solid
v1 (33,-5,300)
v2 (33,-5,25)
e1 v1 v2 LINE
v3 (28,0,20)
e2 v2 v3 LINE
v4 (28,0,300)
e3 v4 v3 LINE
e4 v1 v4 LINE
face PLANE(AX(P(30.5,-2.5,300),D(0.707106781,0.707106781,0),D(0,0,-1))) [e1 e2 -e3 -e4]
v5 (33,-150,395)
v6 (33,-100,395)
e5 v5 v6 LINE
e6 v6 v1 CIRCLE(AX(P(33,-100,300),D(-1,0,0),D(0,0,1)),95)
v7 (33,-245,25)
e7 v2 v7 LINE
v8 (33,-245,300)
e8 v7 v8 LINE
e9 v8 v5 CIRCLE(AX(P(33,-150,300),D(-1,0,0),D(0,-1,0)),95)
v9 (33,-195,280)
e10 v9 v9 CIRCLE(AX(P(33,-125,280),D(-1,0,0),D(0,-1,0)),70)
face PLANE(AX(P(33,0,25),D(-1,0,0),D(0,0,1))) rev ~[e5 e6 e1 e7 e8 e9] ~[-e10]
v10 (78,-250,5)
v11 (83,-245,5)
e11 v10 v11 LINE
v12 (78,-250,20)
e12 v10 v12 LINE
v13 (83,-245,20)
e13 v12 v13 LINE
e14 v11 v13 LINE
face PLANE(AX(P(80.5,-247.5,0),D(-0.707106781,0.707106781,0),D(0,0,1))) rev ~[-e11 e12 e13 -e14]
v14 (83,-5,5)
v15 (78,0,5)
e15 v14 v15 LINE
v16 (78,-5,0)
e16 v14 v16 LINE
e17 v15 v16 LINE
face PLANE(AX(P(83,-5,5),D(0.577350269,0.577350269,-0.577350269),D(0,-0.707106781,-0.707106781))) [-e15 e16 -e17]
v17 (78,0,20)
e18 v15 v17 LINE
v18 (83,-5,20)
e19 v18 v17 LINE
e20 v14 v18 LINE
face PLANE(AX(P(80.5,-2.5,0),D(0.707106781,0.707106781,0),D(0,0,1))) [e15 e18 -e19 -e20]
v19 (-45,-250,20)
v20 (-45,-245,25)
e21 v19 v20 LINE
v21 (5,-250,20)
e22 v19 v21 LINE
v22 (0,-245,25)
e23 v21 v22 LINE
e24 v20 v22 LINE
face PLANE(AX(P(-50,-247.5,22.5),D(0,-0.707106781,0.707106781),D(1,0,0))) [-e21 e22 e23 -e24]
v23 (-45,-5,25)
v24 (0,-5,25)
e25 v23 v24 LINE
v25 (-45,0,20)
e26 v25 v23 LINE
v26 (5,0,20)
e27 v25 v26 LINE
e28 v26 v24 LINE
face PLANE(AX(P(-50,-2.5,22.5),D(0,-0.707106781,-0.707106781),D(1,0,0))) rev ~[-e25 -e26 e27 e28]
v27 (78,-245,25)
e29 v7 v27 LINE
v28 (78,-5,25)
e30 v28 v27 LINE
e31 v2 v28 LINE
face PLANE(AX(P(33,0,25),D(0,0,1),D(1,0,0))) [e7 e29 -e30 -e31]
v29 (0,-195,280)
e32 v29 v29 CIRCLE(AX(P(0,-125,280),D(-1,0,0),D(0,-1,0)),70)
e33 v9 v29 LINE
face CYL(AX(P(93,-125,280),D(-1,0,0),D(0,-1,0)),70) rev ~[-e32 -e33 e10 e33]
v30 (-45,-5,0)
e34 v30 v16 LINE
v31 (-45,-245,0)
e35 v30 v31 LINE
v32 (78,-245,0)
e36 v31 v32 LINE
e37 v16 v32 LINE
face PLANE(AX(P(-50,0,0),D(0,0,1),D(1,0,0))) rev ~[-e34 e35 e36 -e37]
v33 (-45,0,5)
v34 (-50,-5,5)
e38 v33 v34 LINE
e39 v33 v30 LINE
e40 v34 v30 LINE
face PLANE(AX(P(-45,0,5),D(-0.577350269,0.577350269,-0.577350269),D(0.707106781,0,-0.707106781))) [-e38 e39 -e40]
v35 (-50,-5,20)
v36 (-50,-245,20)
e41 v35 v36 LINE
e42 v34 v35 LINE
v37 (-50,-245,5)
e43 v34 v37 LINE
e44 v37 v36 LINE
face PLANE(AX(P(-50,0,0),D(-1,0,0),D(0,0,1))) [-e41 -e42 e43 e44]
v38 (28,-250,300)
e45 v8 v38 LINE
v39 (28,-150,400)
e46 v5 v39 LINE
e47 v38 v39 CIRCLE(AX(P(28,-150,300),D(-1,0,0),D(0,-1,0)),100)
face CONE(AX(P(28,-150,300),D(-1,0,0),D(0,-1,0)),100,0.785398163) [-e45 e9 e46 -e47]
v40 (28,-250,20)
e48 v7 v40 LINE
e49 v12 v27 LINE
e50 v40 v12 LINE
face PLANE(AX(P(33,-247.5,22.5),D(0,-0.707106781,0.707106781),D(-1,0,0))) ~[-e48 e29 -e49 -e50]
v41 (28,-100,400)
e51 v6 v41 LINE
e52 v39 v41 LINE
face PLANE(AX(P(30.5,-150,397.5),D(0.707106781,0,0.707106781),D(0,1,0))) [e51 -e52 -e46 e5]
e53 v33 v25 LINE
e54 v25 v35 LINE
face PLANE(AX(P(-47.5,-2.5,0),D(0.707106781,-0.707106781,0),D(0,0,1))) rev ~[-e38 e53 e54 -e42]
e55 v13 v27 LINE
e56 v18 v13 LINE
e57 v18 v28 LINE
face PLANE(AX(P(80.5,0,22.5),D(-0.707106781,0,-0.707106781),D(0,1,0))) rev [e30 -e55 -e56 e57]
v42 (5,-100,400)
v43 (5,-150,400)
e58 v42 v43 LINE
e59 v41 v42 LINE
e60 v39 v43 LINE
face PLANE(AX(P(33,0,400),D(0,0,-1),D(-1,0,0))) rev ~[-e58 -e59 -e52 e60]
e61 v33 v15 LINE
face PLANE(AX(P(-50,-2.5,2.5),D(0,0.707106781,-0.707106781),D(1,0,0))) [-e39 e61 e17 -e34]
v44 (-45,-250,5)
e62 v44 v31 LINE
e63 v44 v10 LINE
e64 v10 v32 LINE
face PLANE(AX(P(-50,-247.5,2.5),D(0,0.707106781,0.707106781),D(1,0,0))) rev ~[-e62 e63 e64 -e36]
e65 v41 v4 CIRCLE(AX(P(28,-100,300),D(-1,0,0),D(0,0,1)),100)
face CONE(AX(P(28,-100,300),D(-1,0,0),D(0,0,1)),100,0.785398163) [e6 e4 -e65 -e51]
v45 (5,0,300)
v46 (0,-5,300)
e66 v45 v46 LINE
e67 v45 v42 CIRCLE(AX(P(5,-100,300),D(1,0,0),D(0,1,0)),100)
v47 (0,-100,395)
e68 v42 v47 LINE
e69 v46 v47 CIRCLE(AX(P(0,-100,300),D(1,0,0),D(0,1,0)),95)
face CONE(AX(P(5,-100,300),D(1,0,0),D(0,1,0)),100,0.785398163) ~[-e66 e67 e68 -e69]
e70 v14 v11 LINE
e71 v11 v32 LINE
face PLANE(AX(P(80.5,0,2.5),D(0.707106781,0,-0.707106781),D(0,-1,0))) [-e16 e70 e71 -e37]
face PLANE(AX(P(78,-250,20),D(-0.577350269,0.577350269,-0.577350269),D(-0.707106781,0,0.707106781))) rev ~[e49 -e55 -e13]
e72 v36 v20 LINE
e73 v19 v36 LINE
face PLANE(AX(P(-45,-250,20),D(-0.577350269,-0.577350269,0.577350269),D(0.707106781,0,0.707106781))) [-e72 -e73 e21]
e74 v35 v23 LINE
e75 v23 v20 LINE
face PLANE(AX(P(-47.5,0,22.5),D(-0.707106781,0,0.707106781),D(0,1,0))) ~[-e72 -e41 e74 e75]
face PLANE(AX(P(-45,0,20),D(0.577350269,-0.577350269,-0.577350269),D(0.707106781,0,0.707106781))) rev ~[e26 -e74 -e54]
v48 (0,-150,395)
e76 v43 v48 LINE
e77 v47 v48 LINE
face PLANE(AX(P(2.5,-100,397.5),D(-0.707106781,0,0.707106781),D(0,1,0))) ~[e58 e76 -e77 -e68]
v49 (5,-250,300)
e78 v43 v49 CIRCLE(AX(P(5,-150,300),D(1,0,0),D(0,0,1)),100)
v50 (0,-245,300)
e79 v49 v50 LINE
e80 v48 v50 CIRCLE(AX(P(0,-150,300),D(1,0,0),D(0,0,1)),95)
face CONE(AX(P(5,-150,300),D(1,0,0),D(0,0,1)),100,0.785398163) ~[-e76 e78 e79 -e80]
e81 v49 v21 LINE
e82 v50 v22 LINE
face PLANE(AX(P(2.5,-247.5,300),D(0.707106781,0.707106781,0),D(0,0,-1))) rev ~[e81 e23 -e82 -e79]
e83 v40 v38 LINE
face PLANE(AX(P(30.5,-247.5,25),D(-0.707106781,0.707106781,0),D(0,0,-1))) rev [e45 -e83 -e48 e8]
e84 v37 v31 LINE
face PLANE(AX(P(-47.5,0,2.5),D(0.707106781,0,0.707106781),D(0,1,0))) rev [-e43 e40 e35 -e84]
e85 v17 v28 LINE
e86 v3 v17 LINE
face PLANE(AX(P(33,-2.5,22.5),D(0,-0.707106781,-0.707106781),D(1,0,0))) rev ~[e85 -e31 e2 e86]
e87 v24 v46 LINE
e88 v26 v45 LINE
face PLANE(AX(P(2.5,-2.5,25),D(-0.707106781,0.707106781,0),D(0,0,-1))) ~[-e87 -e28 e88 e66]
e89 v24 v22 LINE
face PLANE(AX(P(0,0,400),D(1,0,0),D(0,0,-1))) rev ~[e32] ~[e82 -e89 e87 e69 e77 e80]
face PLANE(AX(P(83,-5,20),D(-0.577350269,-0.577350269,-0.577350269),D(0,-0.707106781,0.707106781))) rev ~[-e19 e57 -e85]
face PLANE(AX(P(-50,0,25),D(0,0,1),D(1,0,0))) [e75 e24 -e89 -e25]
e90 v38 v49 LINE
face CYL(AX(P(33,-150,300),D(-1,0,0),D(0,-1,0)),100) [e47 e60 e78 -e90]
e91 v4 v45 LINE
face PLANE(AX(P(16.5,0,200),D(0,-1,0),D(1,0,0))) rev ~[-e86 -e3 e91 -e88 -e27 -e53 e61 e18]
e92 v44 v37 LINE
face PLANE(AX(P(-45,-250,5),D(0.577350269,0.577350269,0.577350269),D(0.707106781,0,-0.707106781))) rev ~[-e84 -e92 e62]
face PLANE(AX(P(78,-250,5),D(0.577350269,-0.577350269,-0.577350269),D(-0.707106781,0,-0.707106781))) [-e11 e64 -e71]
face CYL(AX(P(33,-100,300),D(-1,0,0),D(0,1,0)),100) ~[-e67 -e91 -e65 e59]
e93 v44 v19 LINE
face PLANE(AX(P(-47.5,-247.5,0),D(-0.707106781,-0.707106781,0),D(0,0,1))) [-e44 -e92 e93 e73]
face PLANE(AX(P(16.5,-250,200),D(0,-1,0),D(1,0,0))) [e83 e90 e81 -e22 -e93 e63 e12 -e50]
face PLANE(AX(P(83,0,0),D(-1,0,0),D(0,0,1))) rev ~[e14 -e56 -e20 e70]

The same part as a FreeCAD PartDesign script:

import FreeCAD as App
import Part
import Sketcher


def edges_at(feature, points):
    """Names of the edges that pass closest to the given points."""
    edges = feature.Shape.Edges
    near = lambda p: min(range(len(edges)), key=lambda i: edges[i].distToShape(Part.Vertex(*p))[0])
    return sorted({f"Edge{near(p) + 1}" for p in points})


def add_polygon(sketch, points):
    """Adds a closed chain of lines whose ends are joined by coincident constraints."""
    first, n = sketch.GeometryCount, len(points)
    for a, b in zip(points, points[1:] + points[:1]):
        sketch.addGeometry(Part.LineSegment(App.Vector(*a, 0), App.Vector(*b, 0)), False)
    for i in range(n):
        sketch.addConstraint(Sketcher.Constraint("Coincident", first + i, 2, first + (i + 1) % n, 1))

doc = App.newDocument("Part")
body = doc.addObject("PartDesign::Body", "Body")

# Sketch on XZ plane
sketch1 = body.newObject("Sketcher::SketchObject", "Sketch")
sketch1.AttachmentSupport = (doc.getObject("XZ_Plane"), [""])
sketch1.MapMode = "FlatFace"
add_polygon(sketch1, [(33, 25), (33, 400), (0, 400), (0, 25), (-50, 25), (-50, 0), (83, 0), (83, 25)])  # lines 0-7
sketch1.addConstraint([
    Sketcher.Constraint("Vertical", 0),
    Sketcher.Constraint("Horizontal", 1),
    Sketcher.Constraint("Vertical", 2),
    Sketcher.Constraint("Horizontal", 3),
    Sketcher.Constraint("Vertical", 4),
    Sketcher.Constraint("Horizontal", 5),
    Sketcher.Constraint("Vertical", 6),
    Sketcher.Constraint("Horizontal", 7),
    Sketcher.Constraint("PointOnObject", 1, 2, -2),
    Sketcher.Constraint("PointOnObject", 4, 2, -1),
    Sketcher.Constraint("Horizontal", 3, 2, 6, 2),
    Sketcher.Constraint("Equal", 3, 7),
    Sketcher.Constraint("DistanceX", 1, 2, 1, 1, 33.0),
    Sketcher.Constraint("DistanceX", 3, 2, 3, 1, 50.0),
    Sketcher.Constraint("DistanceY", 0, 1, 0, 2, 375.0),
    Sketcher.Constraint("DistanceY", 4, 2, 4, 1, 25.0),
])
pad1 = body.newObject("PartDesign::Pad", "Pad")
pad1.Profile = sketch1
pad1.Length = 250

# Sketch on YZ plane
sketch2 = body.newObject("Sketcher::SketchObject", "Sketch001")
sketch2.AttachmentSupport = (doc.getObject("YZ_Plane"), [""])
sketch2.MapMode = "FlatFace"
sketch2.AttachmentOffset = App.Placement(App.Vector(0, 0, 33), App.Rotation())
sketch2.addGeometry(Part.Circle(App.Vector(-125, 280, 0), App.Vector(0, 0, 1), 70), False)
sketch2.addConstraint([
    Sketcher.Constraint("Diameter", 0, 140.0),
    Sketcher.Constraint("DistanceX", 0, 3, -1, 1, 125.0),
    Sketcher.Constraint("DistanceY", -1, 1, 0, 3, 280.0),
])
doc.recompute()
hole = body.newObject("PartDesign::Hole", "Hole")
hole.Profile = sketch2
hole.ThreadType = "None"
hole.Diameter = 140
hole.DepthType = "Dimension"
hole.Depth = 60
hole.DrillPoint = "Flat"
doc.recompute()

fillet = body.newObject("PartDesign::Fillet", "Fillet")
fillet.Base = (hole, edges_at(hole, [(16.5, 0, 400), (16.5, -250, 400)]))
fillet.Radius = 100
doc.recompute()

chamfer = body.newObject("PartDesign::Chamfer", "Chamfer")
chamfer.Base = (fillet, edges_at(fillet, [
    (-50, -125, 25),
    (-50, -125, 0),
    (-50, 0, 12.5),
    (-50, -250, 12.5),
    (-25, -250, 25),
    (0, -250, 162.5),
    (33, -250, 162.5),
    (-25, 0, 25),
    (16.5, 0, 0),
    (58, 0, 25),
    (83, 0, 12.5),
    (83, -125, 25),
    (83, -125, 0),
    (83, -250, 12.5),
    (58, -250, 25),
    (16.5, -250, 0),
]))
chamfer.Size = 5

doc.recompute()
